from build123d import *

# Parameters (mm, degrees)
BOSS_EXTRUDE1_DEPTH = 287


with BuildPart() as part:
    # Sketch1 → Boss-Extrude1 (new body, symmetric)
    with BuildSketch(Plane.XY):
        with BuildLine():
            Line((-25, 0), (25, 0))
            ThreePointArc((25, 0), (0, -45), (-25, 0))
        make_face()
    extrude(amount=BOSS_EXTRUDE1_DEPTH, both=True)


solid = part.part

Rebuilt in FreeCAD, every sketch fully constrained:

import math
import FreeCAD as App
import Part
import Sketcher
Q = App.Units.Quantity

doc = App.newDocument("Part")
body = doc.addObject("PartDesign::Body", "Body")

# Sketch on XY plane
sketch1 = doc.addObject("Sketcher::SketchObject", "Sketch")
body.addObject(sketch1)
sketch1.AttachmentSupport = (doc.XY_Plane, [""])
sketch1.MapMode = "FlatFace"
sketch1.addGeometry([
    Part.LineSegment(App.Vector(25, 0, 0), App.Vector(-25, 0, 0)),
    Part.ArcOfCircle(Part.Circle(App.Vector(0, -16, 0), App.Vector(0, 0, 1), 29), math.radians(148), math.radians(392)),
], False)
sketch1.addConstraint([
    Sketcher.Constraint("Coincident", 0, 1, 1, 2),
    Sketcher.Constraint("Coincident", 1, 1, 0, 2),
    Sketcher.Constraint("Horizontal", 0),
    Sketcher.Constraint("Symmetric", 0, 1, 1, 1, -1, 1),
    Sketcher.Constraint("DistanceX", 0, 2, 0, 1, Q("50 mm")),
    Sketcher.Constraint("Radius", 1, Q("29.444444 mm")),
])
pad1 = doc.addObject("PartDesign::Pad", "Pad")
body.addObject(pad1)
pad1.Profile = sketch1
pad1.Length = 574
pad1.Midplane = True

doc.recompute()
